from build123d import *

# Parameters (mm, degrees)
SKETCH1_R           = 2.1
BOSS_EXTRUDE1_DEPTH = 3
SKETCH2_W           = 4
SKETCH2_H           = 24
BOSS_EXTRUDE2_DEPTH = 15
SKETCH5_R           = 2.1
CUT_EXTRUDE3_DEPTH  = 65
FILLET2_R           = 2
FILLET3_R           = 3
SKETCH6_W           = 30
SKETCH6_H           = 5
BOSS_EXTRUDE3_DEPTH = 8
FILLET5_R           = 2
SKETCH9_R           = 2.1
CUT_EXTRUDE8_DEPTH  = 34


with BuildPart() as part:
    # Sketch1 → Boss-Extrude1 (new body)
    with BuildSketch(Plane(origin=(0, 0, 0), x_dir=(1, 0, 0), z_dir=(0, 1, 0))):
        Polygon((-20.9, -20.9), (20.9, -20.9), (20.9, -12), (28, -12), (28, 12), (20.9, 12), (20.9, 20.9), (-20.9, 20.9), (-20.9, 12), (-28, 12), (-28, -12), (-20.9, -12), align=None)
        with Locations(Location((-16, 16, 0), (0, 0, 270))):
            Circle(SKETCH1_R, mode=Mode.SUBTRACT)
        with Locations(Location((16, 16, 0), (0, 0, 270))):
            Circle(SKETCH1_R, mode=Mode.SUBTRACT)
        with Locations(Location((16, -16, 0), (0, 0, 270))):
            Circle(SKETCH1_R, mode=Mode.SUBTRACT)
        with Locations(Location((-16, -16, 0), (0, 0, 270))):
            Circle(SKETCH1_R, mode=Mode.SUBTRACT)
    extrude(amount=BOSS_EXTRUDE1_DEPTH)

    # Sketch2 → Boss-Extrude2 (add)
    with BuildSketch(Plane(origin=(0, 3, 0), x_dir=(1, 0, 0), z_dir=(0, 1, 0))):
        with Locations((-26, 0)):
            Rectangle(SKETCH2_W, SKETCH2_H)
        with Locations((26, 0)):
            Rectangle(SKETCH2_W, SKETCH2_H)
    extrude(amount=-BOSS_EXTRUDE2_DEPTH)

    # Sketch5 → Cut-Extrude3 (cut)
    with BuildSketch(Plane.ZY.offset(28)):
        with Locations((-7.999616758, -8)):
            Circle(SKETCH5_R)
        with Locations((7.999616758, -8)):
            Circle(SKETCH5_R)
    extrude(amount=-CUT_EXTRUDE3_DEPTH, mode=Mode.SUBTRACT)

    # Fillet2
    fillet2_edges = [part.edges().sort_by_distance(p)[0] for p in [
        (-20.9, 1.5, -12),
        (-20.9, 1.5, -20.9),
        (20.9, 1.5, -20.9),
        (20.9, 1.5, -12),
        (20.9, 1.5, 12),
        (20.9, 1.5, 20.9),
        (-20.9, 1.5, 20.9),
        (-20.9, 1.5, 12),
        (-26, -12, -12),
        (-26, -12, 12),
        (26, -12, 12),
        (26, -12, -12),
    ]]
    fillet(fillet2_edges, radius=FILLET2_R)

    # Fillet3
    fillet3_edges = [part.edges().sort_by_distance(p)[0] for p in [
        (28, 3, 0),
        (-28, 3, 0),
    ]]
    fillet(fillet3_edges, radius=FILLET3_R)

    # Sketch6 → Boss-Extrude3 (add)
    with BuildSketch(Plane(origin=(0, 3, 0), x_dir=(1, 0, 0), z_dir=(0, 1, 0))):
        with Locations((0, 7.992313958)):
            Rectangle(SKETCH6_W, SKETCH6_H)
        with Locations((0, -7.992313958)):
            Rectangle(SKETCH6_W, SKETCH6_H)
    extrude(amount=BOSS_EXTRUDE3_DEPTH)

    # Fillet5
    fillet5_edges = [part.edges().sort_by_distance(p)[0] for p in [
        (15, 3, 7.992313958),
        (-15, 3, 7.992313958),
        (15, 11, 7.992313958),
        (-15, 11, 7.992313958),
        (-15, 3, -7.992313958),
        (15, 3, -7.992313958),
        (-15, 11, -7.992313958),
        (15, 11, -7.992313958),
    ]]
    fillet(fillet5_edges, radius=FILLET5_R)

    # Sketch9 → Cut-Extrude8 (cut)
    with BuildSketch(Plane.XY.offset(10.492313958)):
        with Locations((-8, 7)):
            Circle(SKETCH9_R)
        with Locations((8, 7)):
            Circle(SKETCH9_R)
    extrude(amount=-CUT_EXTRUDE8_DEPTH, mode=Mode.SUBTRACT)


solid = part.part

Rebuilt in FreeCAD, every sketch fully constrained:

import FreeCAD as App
import Part
import Sketcher


def edges_at(feature, points):
    """Names of the edges that pass closest to the given points."""
    edges = feature.Shape.Edges
    near = lambda p: min(range(len(edges)), key=lambda i: edges[i].distToShape(Part.Vertex(*p))[0])
    return sorted({f"Edge{near(p) + 1}" for p in points})


def add_polygon(sketch, points):
    """Adds a closed chain of lines whose ends are joined by coincident constraints."""
    first, n = sketch.GeometryCount, len(points)
    for a, b in zip(points, points[1:] + points[:1]):
        sketch.addGeometry(Part.LineSegment(App.Vector(*a, 0), App.Vector(*b, 0)), False)
    for i in range(n):
        sketch.addConstraint(Sketcher.Constraint("Coincident", first + i, 2, first + (i + 1) % n, 1))

doc = App.newDocument("Part")
body = doc.addObject("PartDesign::Body", "Body")

sketch1 = body.newObject("Sketcher::SketchObject", "Sketch")
sketch1.AttachmentSupport = (doc.getObject("XZ_Plane"), [""])
sketch1.MapMode = "FlatFace"
add_polygon(sketch1, [(-20.9, 20.9), (20.9, 20.9), (20.9, 12), (28, 12), (28, -12), (20.9, -12), (20.9, -20.9), (-20.9, -20.9), (-20.9, -12), (-28, -12), (-28, 12), (-20.9, 12)])
sketch1.addGeometry(Part.Circle(App.Vector(-16, 16, 0), App.Vector(0, 0, 1), 2.1), False)
sketch1.addGeometry(Part.Circle(App.Vector(16, 16, 0), App.Vector(0, 0, 1), 2.1), False)
sketch1.addGeometry(Part.Circle(App.Vector(-16, -16, 0), App.Vector(0, 0, 1), 2.1), False)
sketch1.addGeometry(Part.Circle(App.Vector(16, -16, 0), App.Vector(0, 0, 1), 2.1), False)
sketch1.addConstraint([
    Sketcher.Constraint("Horizontal", 0),
    Sketcher.Constraint("Vertical", 1),
    Sketcher.Constraint("Horizontal", 2),
    Sketcher.Constraint("Vertical", 3),
    Sketcher.Constraint("Horizontal", 4),
    Sketcher.Constraint("Vertical", 5),
    Sketcher.Constraint("Horizontal", 6),
    Sketcher.Constraint("Vertical", 7),
    Sketcher.Constraint("Horizontal", 8),
    Sketcher.Constraint("Vertical", 9),
    Sketcher.Constraint("Horizontal", 10),
    Sketcher.Constraint("Vertical", 11),
    Sketcher.Constraint("Equal", 12, 13),
    Sketcher.Constraint("Equal", 13, 14),
    Sketcher.Constraint("Equal", 14, 15),
    Sketcher.Constraint("Symmetric", 13, 3, 14, 3, -1, 1),
    Sketcher.Constraint("Symmetric", 12, 3, 15, 3, -1, 1),
    Sketcher.Constraint("Symmetric", 0, 2, 6, 2, -1, 1),
    Sketcher.Constraint("Symmetric", 2, 2, 8, 2, -1, 1),
    Sketcher.Constraint("Symmetric", 4, 2, 10, 2, -1, 1),
    Sketcher.Constraint("Symmetric", 12, 3, 13, 3, -2),
    Sketcher.Constraint("Symmetric", 4, 2, 7, 2, -2),
    Sketcher.Constraint("Diameter", 12, 4.2),
    Sketcher.Constraint("DistanceY", 3, 2, 3, 1, 24.0),
    Sketcher.Constraint("DistanceX", 0, 1, 0, 2, 41.8),
    Sketcher.Constraint("DistanceX", 2, 1, 2, 2, 7.1),
    Sketcher.Constraint("DistanceY", 1, 2, 1, 1, 8.9),
    Sketcher.Constraint("DistanceX", 12, 3, -1, 1, 16.0),
    Sketcher.Constraint("DistanceY", -1, 1, 12, 3, 16.0),
])
pad1 = body.newObject("PartDesign::Pad", "Pad")
pad1.Profile = sketch1
pad1.Length = 3
pad1.Reversed = True

sketch2 = body.newObject("Sketcher::SketchObject", "Sketch001")
sketch2.AttachmentSupport = (doc.getObject("XZ_Plane"), [""])
sketch2.MapMode = "FlatFace"
sketch2.AttachmentOffset = App.Placement(App.Vector(0, 0, -3), App.Rotation())
add_polygon(sketch2, [(-28, -12), (-28, 12), (-24, 12), (-24, -12)])
add_polygon(sketch2, [(24, -12), (24, 12), (28, 12), (28, -12)])
sketch2.addConstraint([
    Sketcher.Constraint("Vertical", 0),
    Sketcher.Constraint("Horizontal", 1),
    Sketcher.Constraint("Vertical", 2),
    Sketcher.Constraint("Horizontal", 3),
    Sketcher.Constraint("Vertical", 4),
    Sketcher.Constraint("Horizontal", 5),
    Sketcher.Constraint("Vertical", 6),
    Sketcher.Constraint("Horizontal", 7),
    Sketcher.Constraint("Symmetric", 2, 2, 4, 2, -1, 1),
    Sketcher.Constraint("Symmetric", 0, 2, 6, 2, -1, 1),
    Sketcher.Constraint("Horizontal", 1, 2, 4, 2),
    Sketcher.Constraint("DistanceX", 1, 1, 1, 2, 4.0),
    Sketcher.Constraint("DistanceY", 0, 1, 0, 2, 24.0),
    Sketcher.Constraint("DistanceX", 0, 2, -1, 1, 28.0),
])
pad2 = body.newObject("PartDesign::Pad", "Pad001")
pad2.Profile = sketch2
pad2.Length = 15

sketch3 = body.newObject("Sketcher::SketchObject", "Sketch002")
sketch3.AttachmentSupport = (doc.getObject("YZ_Plane"), [""])
sketch3.MapMode = "FlatFace"
sketch3.AttachmentOffset = App.Placement(App.Vector(0, 0, -28), App.Rotation())
sketch3.addGeometry([
    Part.Circle(App.Vector(-8, -8, 0), App.Vector(0, 0, 1), 2.1),
    Part.Circle(App.Vector(-8, 8, 0), App.Vector(0, 0, 1), 2.1),
], False)
sketch3.addConstraint([
    Sketcher.Constraint("Equal", 0, 1),
    Sketcher.Constraint("Symmetric", 0, 3, 1, 3, -1),
    Sketcher.Constraint("Diameter", 0, 4.2),
    Sketcher.Constraint("DistanceX", 0, 3, -1, 1, 8.0),
    Sketcher.Constraint("DistanceY", 0, 3, -1, 1, 7.999617),
])
pocket1 = body.newObject("PartDesign::Pocket", "Pocket")
pocket1.Profile = sketch3
pocket1.Length = 65
pocket1.Reversed = True
doc.recompute()

fillet = body.newObject("PartDesign::Fillet", "Fillet")
fillet.Base = (pocket1, edges_at(pocket1, [
    (-20.9, 1.5, -12),
    (-20.9, 1.5, -20.9),
    (20.9, 1.5, -20.9),
    (20.9, 1.5, -12),
    (20.9, 1.5, 12),
    (20.9, 1.5, 20.9),
    (-20.9, 1.5, 20.9),
    (-20.9, 1.5, 12),
    (-26, -12, -12),
    (-26, -12, 12),
    (26, -12, 12),
    (26, -12, -12),
]))
fillet.Radius = 2
doc.recompute()

fillet2 = body.newObject("PartDesign::Fillet", "Fillet001")
fillet2.Base = (fillet, edges_at(fillet, [(28, 3, 0), (-28, 3, 0)]))
fillet2.Radius = 3

sketch4 = body.newObject("Sketcher::SketchObject", "Sketch003")
sketch4.AttachmentSupport = (doc.getObject("XZ_Plane"), [""])
sketch4.MapMode = "FlatFace"
sketch4.AttachmentOffset = App.Placement(App.Vector(0, 0, -3), App.Rotation())
add_polygon(sketch4, [(-15, -10), (-15, -5), (15, -5), (15, -10)])
add_polygon(sketch4, [(-15, 5), (-15, 10), (15, 10), (15, 5)])
sketch4.addConstraint([
    Sketcher.Constraint("Vertical", 0),
    Sketcher.Constraint("Horizontal", 1),
    Sketcher.Constraint("Vertical", 2),
    Sketcher.Constraint("Horizontal", 3),
    Sketcher.Constraint("Vertical", 4),
    Sketcher.Constraint("Horizontal", 5),
    Sketcher.Constraint("Vertical", 6),
    Sketcher.Constraint("Horizontal", 7),
    Sketcher.Constraint("Symmetric", 2, 2, 4, 2, -1, 1),
    Sketcher.Constraint("Symmetric", 0, 2, 6, 2, -1, 1),
    Sketcher.Constraint("Vertical", 3, 2, 4, 2),
    Sketcher.Constraint("DistanceX", 1, 1, 1, 2, 30.0),
    Sketcher.Constraint("DistanceY", 0, 1, 0, 2, 5.0),
    Sketcher.Constraint("DistanceY", 0, 2, -1, 1, 5.492314),
])
pad3 = body.newObject("PartDesign::Pad", "Pad002")
pad3.Profile = sketch4
pad3.Length = 8
pad3.Reversed = True
doc.recompute()

fillet3 = body.newObject("PartDesign::Fillet", "Fillet002")
fillet3.Base = (pad3, edges_at(pad3, [
    (15, 3, 7.992),
    (-15, 3, 7.992),
    (15, 11, 7.992),
    (-15, 11, 7.992),
    (-15, 3, -7.992),
    (15, 3, -7.992),
    (-15, 11, -7.992),
    (15, 11, -7.992),
]))
fillet3.Radius = 2

sketch5 = body.newObject("Sketcher::SketchObject", "Sketch004")
sketch5.AttachmentSupport = (doc.getObject("XY_Plane"), [""])
sketch5.MapMode = "FlatFace"
sketch5.AttachmentOffset = App.Placement(App.Vector(0, 0, 10.492314), App.Rotation())
sketch5.addGeometry([
    Part.Circle(App.Vector(-8, 7, 0), App.Vector(0, 0, 1), 2.1),
    Part.Circle(App.Vector(8, 7, 0), App.Vector(0, 0, 1), 2.1),
], False)
sketch5.addConstraint([
    Sketcher.Constraint("Equal", 0, 1),
    Sketcher.Constraint("Symmetric", 0, 3, 1, 3, -2),
    Sketcher.Constraint("Diameter", 0, 4.2),
    Sketcher.Constraint("DistanceX", 0, 3, -1, 1, 8.0),
    Sketcher.Constraint("DistanceY", -1, 1, 0, 3, 7.0),
])
pocket2 = body.newObject("PartDesign::Pocket", "Pocket001")
pocket2.Profile = sketch5
pocket2.Length = 34

doc.recompute()
